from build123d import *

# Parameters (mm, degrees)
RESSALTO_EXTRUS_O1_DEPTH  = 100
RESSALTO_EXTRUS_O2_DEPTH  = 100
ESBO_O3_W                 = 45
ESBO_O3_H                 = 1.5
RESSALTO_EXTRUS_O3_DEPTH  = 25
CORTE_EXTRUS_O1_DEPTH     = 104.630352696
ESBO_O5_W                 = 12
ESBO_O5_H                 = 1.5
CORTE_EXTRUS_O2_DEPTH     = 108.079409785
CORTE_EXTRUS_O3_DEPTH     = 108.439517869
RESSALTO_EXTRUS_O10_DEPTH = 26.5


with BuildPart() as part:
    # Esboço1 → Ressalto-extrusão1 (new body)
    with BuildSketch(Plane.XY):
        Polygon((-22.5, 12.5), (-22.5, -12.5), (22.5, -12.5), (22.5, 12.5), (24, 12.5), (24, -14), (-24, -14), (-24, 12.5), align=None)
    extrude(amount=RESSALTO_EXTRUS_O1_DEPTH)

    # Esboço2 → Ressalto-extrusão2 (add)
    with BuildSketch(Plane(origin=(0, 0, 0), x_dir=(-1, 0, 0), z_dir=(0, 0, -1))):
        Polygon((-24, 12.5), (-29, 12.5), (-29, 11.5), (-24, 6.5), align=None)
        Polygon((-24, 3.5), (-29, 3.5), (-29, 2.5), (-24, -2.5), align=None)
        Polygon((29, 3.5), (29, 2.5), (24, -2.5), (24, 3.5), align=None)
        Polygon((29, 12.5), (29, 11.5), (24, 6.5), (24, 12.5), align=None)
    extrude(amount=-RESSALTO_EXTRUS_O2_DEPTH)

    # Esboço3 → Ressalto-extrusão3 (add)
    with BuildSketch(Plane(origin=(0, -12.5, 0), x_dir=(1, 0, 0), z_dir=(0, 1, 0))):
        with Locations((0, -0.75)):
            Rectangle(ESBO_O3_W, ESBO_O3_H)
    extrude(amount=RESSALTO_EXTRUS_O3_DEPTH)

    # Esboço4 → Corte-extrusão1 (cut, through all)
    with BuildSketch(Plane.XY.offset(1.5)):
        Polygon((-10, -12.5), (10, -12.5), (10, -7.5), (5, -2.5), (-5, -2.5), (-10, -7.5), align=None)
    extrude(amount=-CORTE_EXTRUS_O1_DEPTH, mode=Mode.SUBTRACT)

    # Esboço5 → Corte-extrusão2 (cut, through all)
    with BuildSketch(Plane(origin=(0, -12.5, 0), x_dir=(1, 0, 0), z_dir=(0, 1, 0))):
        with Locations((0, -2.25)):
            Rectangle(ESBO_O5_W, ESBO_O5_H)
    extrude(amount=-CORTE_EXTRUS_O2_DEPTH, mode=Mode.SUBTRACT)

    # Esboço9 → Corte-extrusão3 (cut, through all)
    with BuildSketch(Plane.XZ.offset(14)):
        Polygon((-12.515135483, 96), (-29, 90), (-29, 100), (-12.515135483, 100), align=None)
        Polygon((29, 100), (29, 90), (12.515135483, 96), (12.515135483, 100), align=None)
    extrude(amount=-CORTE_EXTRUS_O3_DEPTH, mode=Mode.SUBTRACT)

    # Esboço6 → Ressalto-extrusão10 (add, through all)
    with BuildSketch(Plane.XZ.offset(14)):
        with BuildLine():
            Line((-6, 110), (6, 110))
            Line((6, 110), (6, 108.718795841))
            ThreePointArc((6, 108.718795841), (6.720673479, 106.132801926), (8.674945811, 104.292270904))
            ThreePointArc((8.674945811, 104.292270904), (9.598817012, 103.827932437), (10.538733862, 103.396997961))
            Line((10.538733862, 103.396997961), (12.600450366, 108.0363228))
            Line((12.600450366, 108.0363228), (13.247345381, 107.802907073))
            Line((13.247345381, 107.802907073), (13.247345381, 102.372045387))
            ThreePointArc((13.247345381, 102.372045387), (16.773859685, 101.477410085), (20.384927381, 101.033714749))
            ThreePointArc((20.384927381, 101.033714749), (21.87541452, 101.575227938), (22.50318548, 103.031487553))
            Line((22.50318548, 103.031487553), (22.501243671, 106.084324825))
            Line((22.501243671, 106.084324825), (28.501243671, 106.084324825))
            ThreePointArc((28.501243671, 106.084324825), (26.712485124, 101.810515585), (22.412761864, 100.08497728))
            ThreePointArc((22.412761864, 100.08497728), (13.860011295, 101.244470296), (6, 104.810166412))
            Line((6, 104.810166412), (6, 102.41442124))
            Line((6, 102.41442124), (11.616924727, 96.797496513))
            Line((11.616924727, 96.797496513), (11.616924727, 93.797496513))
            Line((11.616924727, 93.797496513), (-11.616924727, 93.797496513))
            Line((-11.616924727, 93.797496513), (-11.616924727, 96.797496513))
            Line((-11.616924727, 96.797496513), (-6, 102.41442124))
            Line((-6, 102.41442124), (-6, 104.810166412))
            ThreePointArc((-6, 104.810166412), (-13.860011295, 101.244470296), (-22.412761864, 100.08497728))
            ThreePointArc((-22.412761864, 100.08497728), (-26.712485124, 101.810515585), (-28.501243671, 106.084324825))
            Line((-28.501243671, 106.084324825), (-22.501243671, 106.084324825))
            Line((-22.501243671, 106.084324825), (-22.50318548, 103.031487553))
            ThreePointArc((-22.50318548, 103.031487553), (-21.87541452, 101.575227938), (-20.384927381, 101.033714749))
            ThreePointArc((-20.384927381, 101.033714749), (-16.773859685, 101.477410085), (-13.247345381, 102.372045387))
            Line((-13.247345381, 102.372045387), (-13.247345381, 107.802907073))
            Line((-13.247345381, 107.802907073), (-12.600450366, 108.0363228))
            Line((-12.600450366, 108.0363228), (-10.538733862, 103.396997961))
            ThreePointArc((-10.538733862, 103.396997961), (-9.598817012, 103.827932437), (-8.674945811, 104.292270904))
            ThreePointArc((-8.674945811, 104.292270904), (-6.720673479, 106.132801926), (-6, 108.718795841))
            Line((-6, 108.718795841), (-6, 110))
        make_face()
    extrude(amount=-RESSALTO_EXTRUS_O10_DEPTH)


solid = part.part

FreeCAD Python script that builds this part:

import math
import FreeCAD as App
import Part
import Sketcher
from FreeCAD import Vector
Q = App.Units.Quantity

doc = App.newDocument("Part")
params = doc.addObject("Spreadsheet::Sheet", "Params")
for row, (alias, value) in enumerate([
    ("sketch1_width", "48 mm"),
    ("sketch1_width2", "45 mm"),
    ("sketch1_height", "25 mm"),
    ("sketch1_height2", "26.5 mm"),
    ("pad1_length", "100 mm"),
    ("sketch2_width", "5 mm"),
    ("sketch2_height", "1 mm"),
    ("pad2_length", "100 mm"),
    ("sketch3_width", "45 mm"),
    ("sketch3_height", "1.5 mm"),
    ("pad3_length", "25 mm"),
    ("sketch4_width", "20 mm"),
    ("sketch4_width2", "10 mm"),
    ("sketch4_height", "5 mm"),
    ("sketch5_width", "12 mm"),
    ("sketch5_height", "1.5 mm"),
    ("sketch6_height", "4 mm"),
    ("sketch6_height2", "10 mm"),
    ("sketch7_radius", "5 mm"),
    ("sketch7_radius2", "2 mm"),
    ("sketch7_radius3", "6 mm"),
    ("sketch7_width", "12 mm"),
    ("sketch7_height", "3 mm"),
    ("pad4_length", "26.5 mm"),
], start=1):
    params.set(f"A{row}", alias)
    params.set(f"B{row}", "=" + value)
    params.setAlias(f"B{row}", alias)

body = doc.addObject("PartDesign::Body", "Body")

# Sketch on XY plane
sketch1 = body.newObject("Sketcher::SketchObject", "Sketch")
sketch1.AttachmentSupport = (doc.getObject("XY_Plane"), [""])
sketch1.MapMode = "FlatFace"
sketch1.addGeometry(Part.LineSegment(Vector(-22.5, -12.5, 0), Vector(-22.5, 12.5, 0)), False)
sketch1.addGeometry(Part.LineSegment(Vector(-22.5, 12.5, 0), Vector(-24, 12.5, 0)), False)
sketch1.addGeometry(Part.LineSegment(Vector(-24, 12.5, 0), Vector(-24, -14, 0)), False)
sketch1.addGeometry(Part.LineSegment(Vector(-24, -14, 0), Vector(24, -14, 0)), False)
sketch1.addGeometry(Part.LineSegment(Vector(24, -14, 0), Vector(24, 12.5, 0)), False)
sketch1.addGeometry(Part.LineSegment(Vector(24, 12.5, 0), Vector(22.5, 12.5, 0)), False)
sketch1.addGeometry(Part.LineSegment(Vector(22.5, 12.5, 0), Vector(22.5, -12.5, 0)), False)
sketch1.addGeometry(Part.LineSegment(Vector(22.5, -12.5, 0), Vector(-22.5, -12.5, 0)), False)
sketch1.addConstraint(Sketcher.Constraint("Coincident", 0, 2, 1, 1))
sketch1.addConstraint(Sketcher.Constraint("Coincident", 1, 2, 2, 1))
sketch1.addConstraint(Sketcher.Constraint("Coincident", 2, 2, 3, 1))
sketch1.addConstraint(Sketcher.Constraint("Coincident", 3, 2, 4, 1))
sketch1.addConstraint(Sketcher.Constraint("Coincident", 4, 2, 5, 1))
sketch1.addConstraint(Sketcher.Constraint("Coincident", 5, 2, 6, 1))
sketch1.addConstraint(Sketcher.Constraint("Coincident", 6, 2, 7, 1))
sketch1.addConstraint(Sketcher.Constraint("Coincident", 7, 2, 0, 1))
sketch1.addConstraint(Sketcher.Constraint("Vertical", 0))
sketch1.addConstraint(Sketcher.Constraint("Horizontal", 1))
sketch1.addConstraint(Sketcher.Constraint("Vertical", 2))
sketch1.addConstraint(Sketcher.Constraint("Horizontal", 3))
sketch1.addConstraint(Sketcher.Constraint("Vertical", 4))
sketch1.addConstraint(Sketcher.Constraint("Horizontal", 5))
sketch1.addConstraint(Sketcher.Constraint("Vertical", 6))
sketch1.addConstraint(Sketcher.Constraint("Horizontal", 7))
sketch1.addConstraint(Sketcher.Constraint("Symmetric", 0, 2, 6, 2, -1, 1))
sketch1.addConstraint(Sketcher.Constraint("Symmetric", 1, 2, 4, 2, -2))
sketch1.addConstraint(Sketcher.Constraint("DistanceX", 3, 1, 3, 2, Q("48 mm")))
sketch1.addConstraint(Sketcher.Constraint("DistanceX", 7, 2, 7, 1, Q("45 mm")))
sketch1.addConstraint(Sketcher.Constraint("DistanceY", 0, 1, 0, 2, Q("25 mm")))
sketch1.addConstraint(Sketcher.Constraint("DistanceY", 2, 2, 2, 1, Q("26.5 mm")))
sketch1.setExpression("Constraints[18]", "Params.sketch1_width")
sketch1.setExpression("Constraints[19]", "Params.sketch1_width2")
sketch1.setExpression("Constraints[20]", "Params.sketch1_height")
sketch1.setExpression("Constraints[21]", "Params.sketch1_height2")
pad1 = body.newObject("PartDesign::Pad", "Pad")
pad1.Profile = sketch1
pad1.setExpression("Length", "Params.pad1_length")

# Sketch on XY plane
sketch2 = body.newObject("Sketcher::SketchObject", "Sketch001")
sketch2.AttachmentSupport = (doc.getObject("XY_Plane"), [""])
sketch2.MapMode = "FlatFace"
sketch2.addGeometry(Part.LineSegment(Vector(24, 12.5, 0), Vector(29, 12.5, 0)), False)
sketch2.addGeometry(Part.LineSegment(Vector(29, 12.5, 0), Vector(29, 11.5, 0)), False)
sketch2.addGeometry(Part.LineSegment(Vector(29, 11.5, 0), Vector(24, 6.5, 0)), False)
sketch2.addGeometry(Part.LineSegment(Vector(24, 6.5, 0), Vector(24, 12.5, 0)), False)
sketch2.addGeometry(Part.LineSegment(Vector(24, 3.5, 0), Vector(29, 3.5, 0)), False)
sketch2.addGeometry(Part.LineSegment(Vector(29, 3.5, 0), Vector(29, 2.5, 0)), False)
sketch2.addGeometry(Part.LineSegment(Vector(29, 2.5, 0), Vector(24, -2.5, 0)), False)
sketch2.addGeometry(Part.LineSegment(Vector(24, -2.5, 0), Vector(24, 3.5, 0)), False)
sketch2.addGeometry(Part.LineSegment(Vector(-29, 2.5, 0), Vector(-29, 3.5, 0)), False)
sketch2.addGeometry(Part.LineSegment(Vector(-29, 3.5, 0), Vector(-24, 3.5, 0)), False)
sketch2.addGeometry(Part.LineSegment(Vector(-24, 3.5, 0), Vector(-24, -2.5, 0)), False)
sketch2.addGeometry(Part.LineSegment(Vector(-24, -2.5, 0), Vector(-29, 2.5, 0)), False)
sketch2.addGeometry(Part.LineSegment(Vector(-29, 11.5, 0), Vector(-29, 12.5, 0)), False)
sketch2.addGeometry(Part.LineSegment(Vector(-29, 12.5, 0), Vector(-24, 12.5, 0)), False)
sketch2.addGeometry(Part.LineSegment(Vector(-24, 12.5, 0), Vector(-24, 6.5, 0)), False)
sketch2.addGeometry(Part.LineSegment(Vector(-24, 6.5, 0), Vector(-29, 11.5, 0)), False)
sketch2.addConstraint(Sketcher.Constraint("Coincident", 0, 2, 1, 1))
sketch2.addConstraint(Sketcher.Constraint("Coincident", 1, 2, 2, 1))
sketch2.addConstraint(Sketcher.Constraint("Coincident", 2, 2, 3, 1))
sketch2.addConstraint(Sketcher.Constraint("Coincident", 3, 2, 0, 1))
sketch2.addConstraint(Sketcher.Constraint("Coincident", 4, 2, 5, 1))
sketch2.addConstraint(Sketcher.Constraint("Coincident", 5, 2, 6, 1))
sketch2.addConstraint(Sketcher.Constraint("Coincident", 6, 2, 7, 1))
sketch2.addConstraint(Sketcher.Constraint("Coincident", 7, 2, 4, 1))
sketch2.addConstraint(Sketcher.Constraint("Coincident", 8, 2, 9, 1))
sketch2.addConstraint(Sketcher.Constraint("Coincident", 9, 2, 10, 1))
sketch2.addConstraint(Sketcher.Constraint("Coincident", 10, 2, 11, 1))
sketch2.addConstraint(Sketcher.Constraint("Coincident", 11, 2, 8, 1))
sketch2.addConstraint(Sketcher.Constraint("Coincident", 12, 2, 13, 1))
sketch2.addConstraint(Sketcher.Constraint("Coincident", 13, 2, 14, 1))
sketch2.addConstraint(Sketcher.Constraint("Coincident", 14, 2, 15, 1))
sketch2.addConstraint(Sketcher.Constraint("Coincident", 15, 2, 12, 1))
sketch2.addConstraint(Sketcher.Constraint("Horizontal", 0))
sketch2.addConstraint(Sketcher.Constraint("Vertical", 1))
sketch2.addConstraint(Sketcher.Constraint("Vertical", 3))
sketch2.addConstraint(Sketcher.Constraint("Horizontal", 4))
sketch2.addConstraint(Sketcher.Constraint("Vertical", 5))
sketch2.addConstraint(Sketcher.Constraint("Vertical", 7))
sketch2.addConstraint(Sketcher.Constraint("Vertical", 8))
sketch2.addConstraint(Sketcher.Constraint("Horizontal", 9))
sketch2.addConstraint(Sketcher.Constraint("Vertical", 10))
sketch2.addConstraint(Sketcher.Constraint("Vertical", 12))
sketch2.addConstraint(Sketcher.Constraint("Horizontal", 13))
sketch2.addConstraint(Sketcher.Constraint("Vertical", 14))
sketch2.addConstraint(Sketcher.Constraint("Symmetric", 4, 2, 8, 2, -2))
sketch2.addConstraint(Sketcher.Constraint("Symmetric", 6, 2, 10, 2, -2))
sketch2.addConstraint(Sketcher.Constraint("Symmetric", 0, 2, 12, 2, -2))
sketch2.addConstraint(Sketcher.Constraint("Symmetric", 2, 2, 14, 2, -2))
sketch2.addConstraint(Sketcher.Constraint("Parallel", 2, 6))
sketch2.addConstraint(Sketcher.Constraint("Perpendicular", 6, 11))
sketch2.addConstraint(Sketcher.Constraint("Parallel", 11, 15))
sketch2.addConstraint(Sketcher.Constraint("Horizontal", 5, 2, 11, 2))
sketch2.addConstraint(Sketcher.Constraint("Vertical", 1, 2, 4, 2))
sketch2.addConstraint(Sketcher.Constraint("Vertical", 3, 2, 6, 2))
sketch2.addConstraint(Sketcher.Constraint("Equal", 1, 5))
sketch2.addConstraint(Sketcher.Constraint("DistanceX", 0, 1, 0, 2, Q("5 mm")))
sketch2.addConstraint(Sketcher.Constraint("DistanceY", 1, 2, 1, 1, Q("1 mm")))
sketch2.addConstraint(Sketcher.Constraint("DistanceX", -1, 1, 0, 2, Q("29 mm")))
sketch2.addConstraint(Sketcher.Constraint("DistanceY", 4, 2, 2, 2, Q("3 mm")))
sketch2.addConstraint(Sketcher.Constraint("DistanceY", -1, 1, 0, 2, Q("12.5 mm")))
sketch2.setExpression("Constraints[39]", "Params.sketch2_width")
sketch2.setExpression("Constraints[40]", "Params.sketch2_height")
pad2 = body.newObject("PartDesign::Pad", "Pad001")
pad2.Profile = sketch2
pad2.setExpression("Length", "Params.pad2_length")

# Sketch on XZ plane
sketch3 = body.newObject("Sketcher::SketchObject", "Sketch002")
sketch3.AttachmentSupport = (doc.getObject("XZ_Plane"), [""])
sketch3.MapMode = "FlatFace"
sketch3.AttachmentOffset = App.Placement(Vector(0, 0, 12.5), App.Rotation())
sketch3.addGeometry(Part.LineSegment(Vector(-22.5, 0, 0), Vector(-22.5, 1.5, 0)), False)
sketch3.addGeometry(Part.LineSegment(Vector(-22.5, 1.5, 0), Vector(22.5, 1.5, 0)), False)
sketch3.addGeometry(Part.LineSegment(Vector(22.5, 1.5, 0), Vector(22.5, 0, 0)), False)
sketch3.addGeometry(Part.LineSegment(Vector(22.5, 0, 0), Vector(-22.5, 0, 0)), False)
sketch3.addConstraint(Sketcher.Constraint("Coincident", 0, 2, 1, 1))
sketch3.addConstraint(Sketcher.Constraint("Coincident", 1, 2, 2, 1))
sketch3.addConstraint(Sketcher.Constraint("Coincident", 2, 2, 3, 1))
sketch3.addConstraint(Sketcher.Constraint("Coincident", 3, 2, 0, 1))
sketch3.addConstraint(Sketcher.Constraint("Vertical", 0))
sketch3.addConstraint(Sketcher.Constraint("Horizontal", 1))
sketch3.addConstraint(Sketcher.Constraint("Vertical", 2))
sketch3.addConstraint(Sketcher.Constraint("Horizontal", 3))
sketch3.addConstraint(Sketcher.Constraint("Symmetric", 2, 2, 3, 2, -1, 1))
sketch3.addConstraint(Sketcher.Constraint("DistanceX", 1, 1, 1, 2, Q("45 mm")))
sketch3.addConstraint(Sketcher.Constraint("DistanceY", 0, 1, 0, 2, Q("1.5 mm")))
sketch3.setExpression("Constraints[9]", "Params.sketch3_width")
sketch3.setExpression("Constraints[10]", "Params.sketch3_height")
pad3 = body.newObject("PartDesign::Pad", "Pad002")
pad3.Profile = sketch3
pad3.setExpression("Length", "Params.pad3_length")
pad3.Reversed = True

# Sketch on XY plane
sketch4 = body.newObject("Sketcher::SketchObject", "Sketch003")
sketch4.AttachmentSupport = (doc.getObject("XY_Plane"), [""])
sketch4.MapMode = "FlatFace"
sketch4.AttachmentOffset = App.Placement(Vector(0, 0, 1.5), App.Rotation())
sketch4.addGeometry(Part.LineSegment(Vector(-10, -12, 0), Vector(10, -12, 0)), False)
sketch4.addGeometry(Part.LineSegment(Vector(10, -12, 0), Vector(10, -8, 0)), False)
sketch4.addGeometry(Part.LineSegment(Vector(10, -8, 0), Vector(5, -2, 0)), False)
sketch4.addGeometry(Part.LineSegment(Vector(5, -2, 0), Vector(-5, -2, 0)), False)
sketch4.addGeometry(Part.LineSegment(Vector(-5, -2, 0), Vector(-10, -8, 0)), False)
sketch4.addGeometry(Part.LineSegment(Vector(-10, -8, 0), Vector(-10, -12, 0)), False)
sketch4.addConstraint(Sketcher.Constraint("Coincident", 0, 2, 1, 1))
sketch4.addConstraint(Sketcher.Constraint("Coincident", 1, 2, 2, 1))
sketch4.addConstraint(Sketcher.Constraint("Coincident", 2, 2, 3, 1))
sketch4.addConstraint(Sketcher.Constraint("Coincident", 3, 2, 4, 1))
sketch4.addConstraint(Sketcher.Constraint("Coincident", 4, 2, 5, 1))
sketch4.addConstraint(Sketcher.Constraint("Coincident", 5, 2, 0, 1))
sketch4.addConstraint(Sketcher.Constraint("Horizontal", 0))
sketch4.addConstraint(Sketcher.Constraint("Vertical", 1))
sketch4.addConstraint(Sketcher.Constraint("Horizontal", 3))
sketch4.addConstraint(Sketcher.Constraint("Vertical", 5))
sketch4.addConstraint(Sketcher.Constraint("Symmetric", 1, 2, 4, 2, -2))
sketch4.addConstraint(Sketcher.Constraint("Perpendicular", 2, 4))
sketch4.addConstraint(Sketcher.Constraint("Equal", 2, 4))
sketch4.addConstraint(Sketcher.Constraint("DistanceX", 0, 1, 0, 2, Q("20 mm")))
sketch4.addConstraint(Sketcher.Constraint("DistanceX", 3, 2, 3, 1, Q("10 mm")))
sketch4.addConstraint(Sketcher.Constraint("DistanceY", 1, 1, 1, 2, Q("5 mm")))
sketch4.addConstraint(Sketcher.Constraint("DistanceY", 0, 2, -1, 1, Q("12.5 mm")))
sketch4.setExpression("Constraints[13]", "Params.sketch4_width")
sketch4.setExpression("Constraints[14]", "Params.sketch4_width2")
sketch4.setExpression("Constraints[15]", "Params.sketch4_height")
pocket1 = body.newObject("PartDesign::Pocket", "Pocket")
pocket1.Profile = sketch4
pocket1.Type = "ThroughAll"

# Sketch on XZ plane
sketch5 = body.newObject("Sketcher::SketchObject", "Sketch004")
sketch5.AttachmentSupport = (doc.getObject("XZ_Plane"), [""])
sketch5.MapMode = "FlatFace"
sketch5.AttachmentOffset = App.Placement(Vector(0, 0, 12.5), App.Rotation())
sketch5.addGeometry(Part.LineSegment(Vector(-6, 1.5, 0), Vector(-6, 3, 0)), False)
sketch5.addGeometry(Part.LineSegment(Vector(-6, 3, 0), Vector(6, 3, 0)), False)
sketch5.addGeometry(Part.LineSegment(Vector(6, 3, 0), Vector(6, 1.5, 0)), False)
sketch5.addGeometry(Part.LineSegment(Vector(6, 1.5, 0), Vector(-6, 1.5, 0)), False)
sketch5.addConstraint(Sketcher.Constraint("Coincident", 0, 2, 1, 1))
sketch5.addConstraint(Sketcher.Constraint("Coincident", 1, 2, 2, 1))
sketch5.addConstraint(Sketcher.Constraint("Coincident", 2, 2, 3, 1))
sketch5.addConstraint(Sketcher.Constraint("Coincident", 3, 2, 0, 1))
sketch5.addConstraint(Sketcher.Constraint("Vertical", 0))
sketch5.addConstraint(Sketcher.Constraint("Horizontal", 1))
sketch5.addConstraint(Sketcher.Constraint("Vertical", 2))
sketch5.addConstraint(Sketcher.Constraint("Horizontal", 3))
sketch5.addConstraint(Sketcher.Constraint("DistanceX", 1, 1, 1, 2, Q("12 mm")))
sketch5.addConstraint(Sketcher.Constraint("DistanceY", 0, 1, 0, 2, Q("1.5 mm")))
sketch5.addConstraint(Sketcher.Constraint("DistanceX", 0, 2, -1, 1, Q("6 mm")))
sketch5.addConstraint(Sketcher.Constraint("DistanceY", -1, 1, 0, 2, Q("3 mm")))
sketch5.setExpression("Constraints[8]", "Params.sketch5_width")
sketch5.setExpression("Constraints[9]", "Params.sketch5_height")
pocket2 = body.newObject("PartDesign::Pocket", "Pocket001")
pocket2.Profile = sketch5
pocket2.Type = "ThroughAll"
pocket2.Reversed = True

# Sketch on XZ plane
sketch6 = body.newObject("Sketcher::SketchObject", "Sketch005")
sketch6.AttachmentSupport = (doc.getObject("XZ_Plane"), [""])
sketch6.MapMode = "FlatFace"
sketch6.AttachmentOffset = App.Placement(Vector(0, 0, 14), App.Rotation())
sketch6.addGeometry(Part.LineSegment(Vector(-29, 90, 0), Vector(-12.5, 96, 0)), False)
sketch6.addGeometry(Part.LineSegment(Vector(-12.5, 96, 0), Vector(-12.5, 100, 0)), False)
sketch6.addGeometry(Part.LineSegment(Vector(-12.5, 100, 0), Vector(-29, 100, 0)), False)
sketch6.addGeometry(Part.LineSegment(Vector(-29, 100, 0), Vector(-29, 90, 0)), False)
sketch6.addGeometry(Part.LineSegment(Vector(29, 90, 0), Vector(29, 100, 0)), False)
sketch6.addGeometry(Part.LineSegment(Vector(29, 100, 0), Vector(12.5, 100, 0)), False)
sketch6.addGeometry(Part.LineSegment(Vector(12.5, 100, 0), Vector(12.5, 96, 0)), False)
sketch6.addGeometry(Part.LineSegment(Vector(12.5, 96, 0), Vector(29, 90, 0)), False)
sketch6.addConstraint(Sketcher.Constraint("Coincident", 0, 2, 1, 1))
sketch6.addConstraint(Sketcher.Constraint("Coincident", 1, 2, 2, 1))
sketch6.addConstraint(Sketcher.Constraint("Coincident", 2, 2, 3, 1))
sketch6.addConstraint(Sketcher.Constraint("Coincident", 3, 2, 0, 1))
sketch6.addConstraint(Sketcher.Constraint("Coincident", 4, 2, 5, 1))
sketch6.addConstraint(Sketcher.Constraint("Coincident", 5, 2, 6, 1))
sketch6.addConstraint(Sketcher.Constraint("Coincident", 6, 2, 7, 1))
sketch6.addConstraint(Sketcher.Constraint("Coincident", 7, 2, 4, 1))
sketch6.addConstraint(Sketcher.Constraint("Vertical", 1))
sketch6.addConstraint(Sketcher.Constraint("Horizontal", 2))
sketch6.addConstraint(Sketcher.Constraint("Vertical", 3))
sketch6.addConstraint(Sketcher.Constraint("Vertical", 4))
sketch6.addConstraint(Sketcher.Constraint("Horizontal", 5))
sketch6.addConstraint(Sketcher.Constraint("Vertical", 6))
sketch6.addConstraint(Sketcher.Constraint("Symmetric", 2, 2, 4, 2, -2))
sketch6.addConstraint(Sketcher.Constraint("Symmetric", 0, 2, 6, 2, -2))
sketch6.addConstraint(Sketcher.Constraint("Horizontal", 3, 2, 7, 2))
sketch6.addConstraint(Sketcher.Constraint("DistanceY", 1, 1, 1, 2, Q("4 mm")))
sketch6.addConstraint(Sketcher.Constraint("DistanceY", 3, 2, 3, 1, Q("10 mm")))
sketch6.addConstraint(Sketcher.Constraint("Angle", 0, Q("20 deg")))
sketch6.addConstraint(Sketcher.Constraint("DistanceY", -1, 1, 0, 2, Q("96 mm")))
sketch6.addConstraint(Sketcher.Constraint("DistanceX", 2, 2, -1, 1, Q("29 mm")))
sketch6.setExpression("Constraints[17]", "Params.sketch6_height")
sketch6.setExpression("Constraints[18]", "Params.sketch6_height2")
pocket3 = body.newObject("PartDesign::Pocket", "Pocket002")
pocket3.Profile = sketch6
pocket3.Type = "ThroughAll"

# Sketch on XZ plane
sketch7 = body.newObject("Sketcher::SketchObject", "Sketch006")
sketch7.AttachmentSupport = (doc.getObject("XZ_Plane"), [""])
sketch7.MapMode = "FlatFace"
sketch7.AttachmentOffset = App.Placement(Vector(0, 0, 14), App.Rotation())
sketch7.addGeometry(Part.LineSegment(Vector(6, 110, 0), Vector(-6, 110, 0)), False)
sketch7.addGeometry(Part.LineSegment(Vector(-6, 110, 0), Vector(-6, 108.7, 0)), False)
sketch7.addGeometry(Part.ArcOfCircle(Part.Circle(Vector(-11, 108.7, 0), Vector(0, 0, 1), 5), math.radians(-62), math.radians(0)), False)
sketch7.addGeometry(Part.ArcOfCircle(Part.Circle(Vector(-22.1, 129.8, 0), Vector(0, 0, 1), 28.9), math.radians(-66.4), math.radians(-62.29)), False)
sketch7.addGeometry(Part.LineSegment(Vector(-10.5, 103.4, 0), Vector(-12.6, 108, 0)), False)
sketch7.addGeometry(Part.LineSegment(Vector(-12.6, 108, 0), Vector(-13.2, 107.8, 0)), False)
sketch7.addGeometry(Part.LineSegment(Vector(-13.2, 107.8, 0), Vector(-13.2, 102.4, 0)), False)
sketch7.addGeometry(Part.ArcOfCircle(Part.Circle(Vector(-22.1, 129.8, 0), Vector(0, 0, 1), 28.9), math.radians(-86.61), math.radians(-72.15)), False)
sketch7.addGeometry(Part.ArcOfCircle(Part.Circle(Vector(-20.5, 103, 0), Vector(0, 0, 1), 2), math.radians(180), math.radians(273)), False)
sketch7.addGeometry(Part.LineSegment(Vector(-22.5, 103, 0), Vector(-22.5, 106.1, 0)), False)
sketch7.addGeometry(Part.LineSegment(Vector(-22.5, 106.1, 0), Vector(-28.5, 106.1, 0)), False)
sketch7.addGeometry(Part.ArcOfCircle(Part.Circle(Vector(-22.5, 106.1, 0), Vector(0, 0, 1), 6), math.radians(-180), math.radians(-89)), False)
sketch7.addGeometry(Part.ArcOfCircle(Part.Circle(Vector(-22.1, 129.8, 0), Vector(0, 0, 1), 29.8), math.radians(-91), math.radians(-57)), False)
sketch7.addGeometry(Part.LineSegment(Vector(-6, 104.8, 0), Vector(-6, 102.4, 0)), False)
sketch7.addGeometry(Part.LineSegment(Vector(-6, 102.4, 0), Vector(-11.6, 96.8, 0)), False)
sketch7.addGeometry(Part.LineSegment(Vector(-11.6, 96.8, 0), Vector(-11.6, 93.8, 0)), False)
sketch7.addGeometry(Part.LineSegment(Vector(-11.6, 93.8, 0), Vector(11.6, 93.8, 0)), False)
sketch7.addGeometry(Part.LineSegment(Vector(11.6, 93.8, 0), Vector(11.6, 96.8, 0)), False)
sketch7.addGeometry(Part.LineSegment(Vector(11.6, 96.8, 0), Vector(6, 102.4, 0)), False)
sketch7.addGeometry(Part.LineSegment(Vector(6, 102.4, 0), Vector(6, 104.8, 0)), False)
sketch7.addGeometry(Part.ArcOfCircle(Part.Circle(Vector(22.1, 129.8, 0), Vector(0, 0, 1), 29.8), math.radians(-123), math.radians(-89)), False)
sketch7.addGeometry(Part.ArcOfCircle(Part.Circle(Vector(22.5, 106.1, 0), Vector(0, 0, 1), 6), math.radians(-91), math.radians(0)), False)
sketch7.addGeometry(Part.LineSegment(Vector(28.5, 106.1, 0), Vector(22.5, 106.1, 0)), False)
sketch7.addGeometry(Part.LineSegment(Vector(22.5, 106.1, 0), Vector(22.5, 103, 0)), False)
sketch7.addGeometry(Part.ArcOfCircle(Part.Circle(Vector(20.5, 103, 0), Vector(0, 0, 1), 2), math.radians(-93), math.radians(0)), False)
sketch7.addGeometry(Part.ArcOfCircle(Part.Circle(Vector(22.1, 129.8, 0), Vector(0, 0, 1), 28.9), math.radians(-107.85), math.radians(-93.39)), False)
sketch7.addGeometry(Part.LineSegment(Vector(13.2, 102.4, 0), Vector(13.2, 107.8, 0)), False)
sketch7.addGeometry(Part.LineSegment(Vector(13.2, 107.8, 0), Vector(12.6, 108, 0)), False)
sketch7.addGeometry(Part.LineSegment(Vector(12.6, 108, 0), Vector(10.5, 103.4, 0)), False)
sketch7.addGeometry(Part.ArcOfCircle(Part.Circle(Vector(22.1, 129.8, 0), Vector(0, 0, 1), 28.9), math.radians(-117.71), math.radians(-113.6)), False)
sketch7.addGeometry(Part.ArcOfCircle(Part.Circle(Vector(11, 108.7, 0), Vector(0, 0, 1), 5), math.radians(180), math.radians(242)), False)
sketch7.addGeometry(Part.LineSegment(Vector(6, 108.7, 0), Vector(6, 110, 0)), False)
sketch7.addConstraint(Sketcher.Constraint("Coincident", 0, 2, 1, 1))
sketch7.addConstraint(Sketcher.Constraint("Tangent", 1, 2, 2, 2))
sketch7.addConstraint(Sketcher.Constraint("Tangent", 2, 1, 3, 2))
sketch7.addConstraint(Sketcher.Constraint("Coincident", 3, 1, 4, 1))
sketch7.addConstraint(Sketcher.Constraint("Coincident", 4, 2, 5, 1))
sketch7.addConstraint(Sketcher.Constraint("Coincident", 5, 2, 6, 1))
sketch7.addConstraint(Sketcher.Constraint("Coincident", 6, 2, 7, 2))
sketch7.addConstraint(Sketcher.Constraint("Tangent", 7, 1, 8, 2))
sketch7.addConstraint(Sketcher.Constraint("Tangent", 8, 1, 9, 1))
sketch7.addConstraint(Sketcher.Constraint("Coincident", 9, 2, 10, 1))
sketch7.addConstraint(Sketcher.Constraint("Coincident", 10, 2, 11, 1))
sketch7.addConstraint(Sketcher.Constraint("Coincident", 11, 2, 12, 1))
sketch7.addConstraint(Sketcher.Constraint("Coincident", 12, 2, 13, 1))
sketch7.addConstraint(Sketcher.Constraint("Coincident", 13, 2, 14, 1))
sketch7.addConstraint(Sketcher.Constraint("Coincident", 14, 2, 15, 1))
sketch7.addConstraint(Sketcher.Constraint("Coincident", 15, 2, 16, 1))
sketch7.addConstraint(Sketcher.Constraint("Coincident", 16, 2, 17, 1))
sketch7.addConstraint(Sketcher.Constraint("Coincident", 17, 2, 18, 1))
sketch7.addConstraint(Sketcher.Constraint("Coincident", 18, 2, 19, 1))
sketch7.addConstraint(Sketcher.Constraint("Coincident", 19, 2, 20, 1))
sketch7.addConstraint(Sketcher.Constraint("Coincident", 20, 2, 21, 1))
sketch7.addConstraint(Sketcher.Constraint("Coincident", 21, 2, 22, 1))
sketch7.addConstraint(Sketcher.Constraint("Coincident", 22, 2, 23, 1))
sketch7.addConstraint(Sketcher.Constraint("Tangent", 23, 2, 24, 2))
sketch7.addConstraint(Sketcher.Constraint("Tangent", 24, 1, 25, 2))
sketch7.addConstraint(Sketcher.Constraint("Coincident", 25, 1, 26, 1))
sketch7.addConstraint(Sketcher.Constraint("Coincident", 26, 2, 27, 1))
sketch7.addConstraint(Sketcher.Constraint("Coincident", 27, 2, 28, 1))
sketch7.addConstraint(Sketcher.Constraint("Coincident", 28, 2, 29, 2))
sketch7.addConstraint(Sketcher.Constraint("Tangent", 29, 1, 30, 2))
sketch7.addConstraint(Sketcher.Constraint("Tangent", 30, 1, 31, 1))
sketch7.addConstraint(Sketcher.Constraint("Coincident", 31, 2, 0, 1))
sketch7.addConstraint(Sketcher.Constraint("Horizontal", 0))
sketch7.addConstraint(Sketcher.Constraint("Vertical", 1))
sketch7.addConstraint(Sketcher.Constraint("Vertical", 6))
sketch7.addConstraint(Sketcher.Constraint("Horizontal", 10))
sketch7.addConstraint(Sketcher.Constraint("Vertical", 13))
sketch7.addConstraint(Sketcher.Constraint("Vertical", 15))
sketch7.addConstraint(Sketcher.Constraint("Horizontal", 16))
sketch7.addConstraint(Sketcher.Constraint("Vertical", 17))
sketch7.addConstraint(Sketcher.Constraint("Vertical", 19))
sketch7.addConstraint(Sketcher.Constraint("Horizontal", 22))
sketch7.addConstraint(Sketcher.Constraint("Vertical", 26))
sketch7.addConstraint(Sketcher.Constraint("Vertical", 31))
sketch7.addConstraint(Sketcher.Constraint("Coincident", 7, 3, 3, 3))
sketch7.addConstraint(Sketcher.Constraint("Coincident", 12, 3, 3, 3))
sketch7.addConstraint(Sketcher.Constraint("Coincident", 25, 3, 20, 3))
sketch7.addConstraint(Sketcher.Constraint("Coincident", 29, 3, 20, 3))
sketch7.addConstraint(Sketcher.Constraint("Coincident", 9, 2, 11, 3))
sketch7.addConstraint(Sketcher.Constraint("Coincident", 22, 2, 21, 3))
sketch7.addConstraint(Sketcher.Constraint("Equal", 3, 7))
sketch7.addConstraint(Sketcher.Constraint("Equal", 12, 20))
sketch7.addConstraint(Sketcher.Constraint("Equal", 11, 21))
sketch7.addConstraint(Sketcher.Constraint("Equal", 8, 24))
sketch7.addConstraint(Sketcher.Constraint("Equal", 7, 25))
sketch7.addConstraint(Sketcher.Constraint("Equal", 25, 29))
sketch7.addConstraint(Sketcher.Constraint("Equal", 2, 30))
sketch7.addConstraint(Sketcher.Constraint("Symmetric", 3, 3, 20, 3, -2))
sketch7.addConstraint(Sketcher.Constraint("Symmetric", 11, 3, 21, 3, -2))
sketch7.addConstraint(Sketcher.Constraint("Symmetric", 14, 2, 17, 2, -2))
sketch7.addConstraint(Sketcher.Constraint("Symmetric", 13, 2, 18, 2, -2))
sketch7.addConstraint(Sketcher.Constraint("Symmetric", 5, 2, 26, 2, -2))
sketch7.addConstraint(Sketcher.Constraint("Symmetric", 4, 2, 27, 2, -2))
sketch7.addConstraint(Sketcher.Constraint("Perpendicular", 14, 18))
sketch7.addConstraint(Sketcher.Constraint("Horizontal", 8, 3, 24, 3))
sketch7.addConstraint(Sketcher.Constraint("Horizontal", 2, 3, 30, 3))
sketch7.addConstraint(Sketcher.Constraint("Horizontal", 3, 1, 28, 2))
sketch7.addConstraint(Sketcher.Constraint("Vertical", 1, 2, 12, 2))
sketch7.addConstraint(Sketcher.Constraint("Radius", 2, Q("5 mm")))
sketch7.addConstraint(Sketcher.Constraint("Radius", 8, Q("2 mm")))
sketch7.addConstraint(Sketcher.Constraint("Radius", 11, Q("6 mm")))
sketch7.addConstraint(Sketcher.Constraint("DistanceX", 0, 2, 0, 1, Q("12 mm")))
sketch7.addConstraint(Sketcher.Constraint("DistanceY", 15, 2, 15, 1, Q("3 mm")))
sketch7.addConstraint(Sketcher.Constraint("DistanceY", -1, 1, 0, 2, Q("110 mm")))
sketch7.addConstraint(Sketcher.Constraint("Radius", 3, Q("28.850734 mm")))
sketch7.addConstraint(Sketcher.Constraint("Radius", 12, Q("29.750734 mm")))
sketch7.addConstraint(Sketcher.Constraint("DistanceX", 16, 1, 16, 2, Q("23.233849 mm")))
sketch7.addConstraint(Sketcher.Constraint("DistanceY", 6, 2, 6, 1, Q("5.430862 mm")))
sketch7.addConstraint(Sketcher.Constraint("DistanceX", 12, 3, 20, 3, Q("44.181699 mm")))
sketch7.addConstraint(Sketcher.Constraint("DistanceX", 5, 2, 2, 1, Q("4.5724 mm")))
sketch7.addConstraint(Sketcher.Constraint("DistanceX", 9, 2, 5, 2, Q("9.253898 mm")))
sketch7.addConstraint(Sketcher.Constraint("DistanceY", 14, 2, 3, 1, Q("6.599501 mm")))
sketch7.addConstraint(Sketcher.Constraint("DistanceY", 16, 2, 30, 3, Q("14.921299 mm")))
sketch7.addConstraint(Sketcher.Constraint("DistanceY", 18, 2, 27, 2, Q("5.621902 mm")))
sketch7.addConstraint(Sketcher.Constraint("Distance", 4, Q("5.076811 mm")))
sketch7.addConstraint(Sketcher.Constraint("DistanceY", 1, 2, 1, 1, Q("1.281204 mm")))
sketch7.addConstraint(Sketcher.Constraint("DistanceX", 11, 2, -1, 1, Q("22.412762 mm")))
sketch7.addConstraint(Sketcher.Constraint("DistanceY", 8, 3, 2, 3, Q("5.68858 mm")))
sketch7.setExpression("Constraints[68]", "Params.sketch7_radius")
sketch7.setExpression("Constraints[69]", "Params.sketch7_radius2")
sketch7.setExpression("Constraints[70]", "Params.sketch7_radius3")
sketch7.setExpression("Constraints[71]", "Params.sketch7_width")
sketch7.setExpression("Constraints[72]", "Params.sketch7_height")
pad4 = body.newObject("PartDesign::Pad", "Pad003")
pad4.Profile = sketch7
pad4.setExpression("Length", "Params.pad4_length")
pad4.Reversed = True

doc.recompute()
